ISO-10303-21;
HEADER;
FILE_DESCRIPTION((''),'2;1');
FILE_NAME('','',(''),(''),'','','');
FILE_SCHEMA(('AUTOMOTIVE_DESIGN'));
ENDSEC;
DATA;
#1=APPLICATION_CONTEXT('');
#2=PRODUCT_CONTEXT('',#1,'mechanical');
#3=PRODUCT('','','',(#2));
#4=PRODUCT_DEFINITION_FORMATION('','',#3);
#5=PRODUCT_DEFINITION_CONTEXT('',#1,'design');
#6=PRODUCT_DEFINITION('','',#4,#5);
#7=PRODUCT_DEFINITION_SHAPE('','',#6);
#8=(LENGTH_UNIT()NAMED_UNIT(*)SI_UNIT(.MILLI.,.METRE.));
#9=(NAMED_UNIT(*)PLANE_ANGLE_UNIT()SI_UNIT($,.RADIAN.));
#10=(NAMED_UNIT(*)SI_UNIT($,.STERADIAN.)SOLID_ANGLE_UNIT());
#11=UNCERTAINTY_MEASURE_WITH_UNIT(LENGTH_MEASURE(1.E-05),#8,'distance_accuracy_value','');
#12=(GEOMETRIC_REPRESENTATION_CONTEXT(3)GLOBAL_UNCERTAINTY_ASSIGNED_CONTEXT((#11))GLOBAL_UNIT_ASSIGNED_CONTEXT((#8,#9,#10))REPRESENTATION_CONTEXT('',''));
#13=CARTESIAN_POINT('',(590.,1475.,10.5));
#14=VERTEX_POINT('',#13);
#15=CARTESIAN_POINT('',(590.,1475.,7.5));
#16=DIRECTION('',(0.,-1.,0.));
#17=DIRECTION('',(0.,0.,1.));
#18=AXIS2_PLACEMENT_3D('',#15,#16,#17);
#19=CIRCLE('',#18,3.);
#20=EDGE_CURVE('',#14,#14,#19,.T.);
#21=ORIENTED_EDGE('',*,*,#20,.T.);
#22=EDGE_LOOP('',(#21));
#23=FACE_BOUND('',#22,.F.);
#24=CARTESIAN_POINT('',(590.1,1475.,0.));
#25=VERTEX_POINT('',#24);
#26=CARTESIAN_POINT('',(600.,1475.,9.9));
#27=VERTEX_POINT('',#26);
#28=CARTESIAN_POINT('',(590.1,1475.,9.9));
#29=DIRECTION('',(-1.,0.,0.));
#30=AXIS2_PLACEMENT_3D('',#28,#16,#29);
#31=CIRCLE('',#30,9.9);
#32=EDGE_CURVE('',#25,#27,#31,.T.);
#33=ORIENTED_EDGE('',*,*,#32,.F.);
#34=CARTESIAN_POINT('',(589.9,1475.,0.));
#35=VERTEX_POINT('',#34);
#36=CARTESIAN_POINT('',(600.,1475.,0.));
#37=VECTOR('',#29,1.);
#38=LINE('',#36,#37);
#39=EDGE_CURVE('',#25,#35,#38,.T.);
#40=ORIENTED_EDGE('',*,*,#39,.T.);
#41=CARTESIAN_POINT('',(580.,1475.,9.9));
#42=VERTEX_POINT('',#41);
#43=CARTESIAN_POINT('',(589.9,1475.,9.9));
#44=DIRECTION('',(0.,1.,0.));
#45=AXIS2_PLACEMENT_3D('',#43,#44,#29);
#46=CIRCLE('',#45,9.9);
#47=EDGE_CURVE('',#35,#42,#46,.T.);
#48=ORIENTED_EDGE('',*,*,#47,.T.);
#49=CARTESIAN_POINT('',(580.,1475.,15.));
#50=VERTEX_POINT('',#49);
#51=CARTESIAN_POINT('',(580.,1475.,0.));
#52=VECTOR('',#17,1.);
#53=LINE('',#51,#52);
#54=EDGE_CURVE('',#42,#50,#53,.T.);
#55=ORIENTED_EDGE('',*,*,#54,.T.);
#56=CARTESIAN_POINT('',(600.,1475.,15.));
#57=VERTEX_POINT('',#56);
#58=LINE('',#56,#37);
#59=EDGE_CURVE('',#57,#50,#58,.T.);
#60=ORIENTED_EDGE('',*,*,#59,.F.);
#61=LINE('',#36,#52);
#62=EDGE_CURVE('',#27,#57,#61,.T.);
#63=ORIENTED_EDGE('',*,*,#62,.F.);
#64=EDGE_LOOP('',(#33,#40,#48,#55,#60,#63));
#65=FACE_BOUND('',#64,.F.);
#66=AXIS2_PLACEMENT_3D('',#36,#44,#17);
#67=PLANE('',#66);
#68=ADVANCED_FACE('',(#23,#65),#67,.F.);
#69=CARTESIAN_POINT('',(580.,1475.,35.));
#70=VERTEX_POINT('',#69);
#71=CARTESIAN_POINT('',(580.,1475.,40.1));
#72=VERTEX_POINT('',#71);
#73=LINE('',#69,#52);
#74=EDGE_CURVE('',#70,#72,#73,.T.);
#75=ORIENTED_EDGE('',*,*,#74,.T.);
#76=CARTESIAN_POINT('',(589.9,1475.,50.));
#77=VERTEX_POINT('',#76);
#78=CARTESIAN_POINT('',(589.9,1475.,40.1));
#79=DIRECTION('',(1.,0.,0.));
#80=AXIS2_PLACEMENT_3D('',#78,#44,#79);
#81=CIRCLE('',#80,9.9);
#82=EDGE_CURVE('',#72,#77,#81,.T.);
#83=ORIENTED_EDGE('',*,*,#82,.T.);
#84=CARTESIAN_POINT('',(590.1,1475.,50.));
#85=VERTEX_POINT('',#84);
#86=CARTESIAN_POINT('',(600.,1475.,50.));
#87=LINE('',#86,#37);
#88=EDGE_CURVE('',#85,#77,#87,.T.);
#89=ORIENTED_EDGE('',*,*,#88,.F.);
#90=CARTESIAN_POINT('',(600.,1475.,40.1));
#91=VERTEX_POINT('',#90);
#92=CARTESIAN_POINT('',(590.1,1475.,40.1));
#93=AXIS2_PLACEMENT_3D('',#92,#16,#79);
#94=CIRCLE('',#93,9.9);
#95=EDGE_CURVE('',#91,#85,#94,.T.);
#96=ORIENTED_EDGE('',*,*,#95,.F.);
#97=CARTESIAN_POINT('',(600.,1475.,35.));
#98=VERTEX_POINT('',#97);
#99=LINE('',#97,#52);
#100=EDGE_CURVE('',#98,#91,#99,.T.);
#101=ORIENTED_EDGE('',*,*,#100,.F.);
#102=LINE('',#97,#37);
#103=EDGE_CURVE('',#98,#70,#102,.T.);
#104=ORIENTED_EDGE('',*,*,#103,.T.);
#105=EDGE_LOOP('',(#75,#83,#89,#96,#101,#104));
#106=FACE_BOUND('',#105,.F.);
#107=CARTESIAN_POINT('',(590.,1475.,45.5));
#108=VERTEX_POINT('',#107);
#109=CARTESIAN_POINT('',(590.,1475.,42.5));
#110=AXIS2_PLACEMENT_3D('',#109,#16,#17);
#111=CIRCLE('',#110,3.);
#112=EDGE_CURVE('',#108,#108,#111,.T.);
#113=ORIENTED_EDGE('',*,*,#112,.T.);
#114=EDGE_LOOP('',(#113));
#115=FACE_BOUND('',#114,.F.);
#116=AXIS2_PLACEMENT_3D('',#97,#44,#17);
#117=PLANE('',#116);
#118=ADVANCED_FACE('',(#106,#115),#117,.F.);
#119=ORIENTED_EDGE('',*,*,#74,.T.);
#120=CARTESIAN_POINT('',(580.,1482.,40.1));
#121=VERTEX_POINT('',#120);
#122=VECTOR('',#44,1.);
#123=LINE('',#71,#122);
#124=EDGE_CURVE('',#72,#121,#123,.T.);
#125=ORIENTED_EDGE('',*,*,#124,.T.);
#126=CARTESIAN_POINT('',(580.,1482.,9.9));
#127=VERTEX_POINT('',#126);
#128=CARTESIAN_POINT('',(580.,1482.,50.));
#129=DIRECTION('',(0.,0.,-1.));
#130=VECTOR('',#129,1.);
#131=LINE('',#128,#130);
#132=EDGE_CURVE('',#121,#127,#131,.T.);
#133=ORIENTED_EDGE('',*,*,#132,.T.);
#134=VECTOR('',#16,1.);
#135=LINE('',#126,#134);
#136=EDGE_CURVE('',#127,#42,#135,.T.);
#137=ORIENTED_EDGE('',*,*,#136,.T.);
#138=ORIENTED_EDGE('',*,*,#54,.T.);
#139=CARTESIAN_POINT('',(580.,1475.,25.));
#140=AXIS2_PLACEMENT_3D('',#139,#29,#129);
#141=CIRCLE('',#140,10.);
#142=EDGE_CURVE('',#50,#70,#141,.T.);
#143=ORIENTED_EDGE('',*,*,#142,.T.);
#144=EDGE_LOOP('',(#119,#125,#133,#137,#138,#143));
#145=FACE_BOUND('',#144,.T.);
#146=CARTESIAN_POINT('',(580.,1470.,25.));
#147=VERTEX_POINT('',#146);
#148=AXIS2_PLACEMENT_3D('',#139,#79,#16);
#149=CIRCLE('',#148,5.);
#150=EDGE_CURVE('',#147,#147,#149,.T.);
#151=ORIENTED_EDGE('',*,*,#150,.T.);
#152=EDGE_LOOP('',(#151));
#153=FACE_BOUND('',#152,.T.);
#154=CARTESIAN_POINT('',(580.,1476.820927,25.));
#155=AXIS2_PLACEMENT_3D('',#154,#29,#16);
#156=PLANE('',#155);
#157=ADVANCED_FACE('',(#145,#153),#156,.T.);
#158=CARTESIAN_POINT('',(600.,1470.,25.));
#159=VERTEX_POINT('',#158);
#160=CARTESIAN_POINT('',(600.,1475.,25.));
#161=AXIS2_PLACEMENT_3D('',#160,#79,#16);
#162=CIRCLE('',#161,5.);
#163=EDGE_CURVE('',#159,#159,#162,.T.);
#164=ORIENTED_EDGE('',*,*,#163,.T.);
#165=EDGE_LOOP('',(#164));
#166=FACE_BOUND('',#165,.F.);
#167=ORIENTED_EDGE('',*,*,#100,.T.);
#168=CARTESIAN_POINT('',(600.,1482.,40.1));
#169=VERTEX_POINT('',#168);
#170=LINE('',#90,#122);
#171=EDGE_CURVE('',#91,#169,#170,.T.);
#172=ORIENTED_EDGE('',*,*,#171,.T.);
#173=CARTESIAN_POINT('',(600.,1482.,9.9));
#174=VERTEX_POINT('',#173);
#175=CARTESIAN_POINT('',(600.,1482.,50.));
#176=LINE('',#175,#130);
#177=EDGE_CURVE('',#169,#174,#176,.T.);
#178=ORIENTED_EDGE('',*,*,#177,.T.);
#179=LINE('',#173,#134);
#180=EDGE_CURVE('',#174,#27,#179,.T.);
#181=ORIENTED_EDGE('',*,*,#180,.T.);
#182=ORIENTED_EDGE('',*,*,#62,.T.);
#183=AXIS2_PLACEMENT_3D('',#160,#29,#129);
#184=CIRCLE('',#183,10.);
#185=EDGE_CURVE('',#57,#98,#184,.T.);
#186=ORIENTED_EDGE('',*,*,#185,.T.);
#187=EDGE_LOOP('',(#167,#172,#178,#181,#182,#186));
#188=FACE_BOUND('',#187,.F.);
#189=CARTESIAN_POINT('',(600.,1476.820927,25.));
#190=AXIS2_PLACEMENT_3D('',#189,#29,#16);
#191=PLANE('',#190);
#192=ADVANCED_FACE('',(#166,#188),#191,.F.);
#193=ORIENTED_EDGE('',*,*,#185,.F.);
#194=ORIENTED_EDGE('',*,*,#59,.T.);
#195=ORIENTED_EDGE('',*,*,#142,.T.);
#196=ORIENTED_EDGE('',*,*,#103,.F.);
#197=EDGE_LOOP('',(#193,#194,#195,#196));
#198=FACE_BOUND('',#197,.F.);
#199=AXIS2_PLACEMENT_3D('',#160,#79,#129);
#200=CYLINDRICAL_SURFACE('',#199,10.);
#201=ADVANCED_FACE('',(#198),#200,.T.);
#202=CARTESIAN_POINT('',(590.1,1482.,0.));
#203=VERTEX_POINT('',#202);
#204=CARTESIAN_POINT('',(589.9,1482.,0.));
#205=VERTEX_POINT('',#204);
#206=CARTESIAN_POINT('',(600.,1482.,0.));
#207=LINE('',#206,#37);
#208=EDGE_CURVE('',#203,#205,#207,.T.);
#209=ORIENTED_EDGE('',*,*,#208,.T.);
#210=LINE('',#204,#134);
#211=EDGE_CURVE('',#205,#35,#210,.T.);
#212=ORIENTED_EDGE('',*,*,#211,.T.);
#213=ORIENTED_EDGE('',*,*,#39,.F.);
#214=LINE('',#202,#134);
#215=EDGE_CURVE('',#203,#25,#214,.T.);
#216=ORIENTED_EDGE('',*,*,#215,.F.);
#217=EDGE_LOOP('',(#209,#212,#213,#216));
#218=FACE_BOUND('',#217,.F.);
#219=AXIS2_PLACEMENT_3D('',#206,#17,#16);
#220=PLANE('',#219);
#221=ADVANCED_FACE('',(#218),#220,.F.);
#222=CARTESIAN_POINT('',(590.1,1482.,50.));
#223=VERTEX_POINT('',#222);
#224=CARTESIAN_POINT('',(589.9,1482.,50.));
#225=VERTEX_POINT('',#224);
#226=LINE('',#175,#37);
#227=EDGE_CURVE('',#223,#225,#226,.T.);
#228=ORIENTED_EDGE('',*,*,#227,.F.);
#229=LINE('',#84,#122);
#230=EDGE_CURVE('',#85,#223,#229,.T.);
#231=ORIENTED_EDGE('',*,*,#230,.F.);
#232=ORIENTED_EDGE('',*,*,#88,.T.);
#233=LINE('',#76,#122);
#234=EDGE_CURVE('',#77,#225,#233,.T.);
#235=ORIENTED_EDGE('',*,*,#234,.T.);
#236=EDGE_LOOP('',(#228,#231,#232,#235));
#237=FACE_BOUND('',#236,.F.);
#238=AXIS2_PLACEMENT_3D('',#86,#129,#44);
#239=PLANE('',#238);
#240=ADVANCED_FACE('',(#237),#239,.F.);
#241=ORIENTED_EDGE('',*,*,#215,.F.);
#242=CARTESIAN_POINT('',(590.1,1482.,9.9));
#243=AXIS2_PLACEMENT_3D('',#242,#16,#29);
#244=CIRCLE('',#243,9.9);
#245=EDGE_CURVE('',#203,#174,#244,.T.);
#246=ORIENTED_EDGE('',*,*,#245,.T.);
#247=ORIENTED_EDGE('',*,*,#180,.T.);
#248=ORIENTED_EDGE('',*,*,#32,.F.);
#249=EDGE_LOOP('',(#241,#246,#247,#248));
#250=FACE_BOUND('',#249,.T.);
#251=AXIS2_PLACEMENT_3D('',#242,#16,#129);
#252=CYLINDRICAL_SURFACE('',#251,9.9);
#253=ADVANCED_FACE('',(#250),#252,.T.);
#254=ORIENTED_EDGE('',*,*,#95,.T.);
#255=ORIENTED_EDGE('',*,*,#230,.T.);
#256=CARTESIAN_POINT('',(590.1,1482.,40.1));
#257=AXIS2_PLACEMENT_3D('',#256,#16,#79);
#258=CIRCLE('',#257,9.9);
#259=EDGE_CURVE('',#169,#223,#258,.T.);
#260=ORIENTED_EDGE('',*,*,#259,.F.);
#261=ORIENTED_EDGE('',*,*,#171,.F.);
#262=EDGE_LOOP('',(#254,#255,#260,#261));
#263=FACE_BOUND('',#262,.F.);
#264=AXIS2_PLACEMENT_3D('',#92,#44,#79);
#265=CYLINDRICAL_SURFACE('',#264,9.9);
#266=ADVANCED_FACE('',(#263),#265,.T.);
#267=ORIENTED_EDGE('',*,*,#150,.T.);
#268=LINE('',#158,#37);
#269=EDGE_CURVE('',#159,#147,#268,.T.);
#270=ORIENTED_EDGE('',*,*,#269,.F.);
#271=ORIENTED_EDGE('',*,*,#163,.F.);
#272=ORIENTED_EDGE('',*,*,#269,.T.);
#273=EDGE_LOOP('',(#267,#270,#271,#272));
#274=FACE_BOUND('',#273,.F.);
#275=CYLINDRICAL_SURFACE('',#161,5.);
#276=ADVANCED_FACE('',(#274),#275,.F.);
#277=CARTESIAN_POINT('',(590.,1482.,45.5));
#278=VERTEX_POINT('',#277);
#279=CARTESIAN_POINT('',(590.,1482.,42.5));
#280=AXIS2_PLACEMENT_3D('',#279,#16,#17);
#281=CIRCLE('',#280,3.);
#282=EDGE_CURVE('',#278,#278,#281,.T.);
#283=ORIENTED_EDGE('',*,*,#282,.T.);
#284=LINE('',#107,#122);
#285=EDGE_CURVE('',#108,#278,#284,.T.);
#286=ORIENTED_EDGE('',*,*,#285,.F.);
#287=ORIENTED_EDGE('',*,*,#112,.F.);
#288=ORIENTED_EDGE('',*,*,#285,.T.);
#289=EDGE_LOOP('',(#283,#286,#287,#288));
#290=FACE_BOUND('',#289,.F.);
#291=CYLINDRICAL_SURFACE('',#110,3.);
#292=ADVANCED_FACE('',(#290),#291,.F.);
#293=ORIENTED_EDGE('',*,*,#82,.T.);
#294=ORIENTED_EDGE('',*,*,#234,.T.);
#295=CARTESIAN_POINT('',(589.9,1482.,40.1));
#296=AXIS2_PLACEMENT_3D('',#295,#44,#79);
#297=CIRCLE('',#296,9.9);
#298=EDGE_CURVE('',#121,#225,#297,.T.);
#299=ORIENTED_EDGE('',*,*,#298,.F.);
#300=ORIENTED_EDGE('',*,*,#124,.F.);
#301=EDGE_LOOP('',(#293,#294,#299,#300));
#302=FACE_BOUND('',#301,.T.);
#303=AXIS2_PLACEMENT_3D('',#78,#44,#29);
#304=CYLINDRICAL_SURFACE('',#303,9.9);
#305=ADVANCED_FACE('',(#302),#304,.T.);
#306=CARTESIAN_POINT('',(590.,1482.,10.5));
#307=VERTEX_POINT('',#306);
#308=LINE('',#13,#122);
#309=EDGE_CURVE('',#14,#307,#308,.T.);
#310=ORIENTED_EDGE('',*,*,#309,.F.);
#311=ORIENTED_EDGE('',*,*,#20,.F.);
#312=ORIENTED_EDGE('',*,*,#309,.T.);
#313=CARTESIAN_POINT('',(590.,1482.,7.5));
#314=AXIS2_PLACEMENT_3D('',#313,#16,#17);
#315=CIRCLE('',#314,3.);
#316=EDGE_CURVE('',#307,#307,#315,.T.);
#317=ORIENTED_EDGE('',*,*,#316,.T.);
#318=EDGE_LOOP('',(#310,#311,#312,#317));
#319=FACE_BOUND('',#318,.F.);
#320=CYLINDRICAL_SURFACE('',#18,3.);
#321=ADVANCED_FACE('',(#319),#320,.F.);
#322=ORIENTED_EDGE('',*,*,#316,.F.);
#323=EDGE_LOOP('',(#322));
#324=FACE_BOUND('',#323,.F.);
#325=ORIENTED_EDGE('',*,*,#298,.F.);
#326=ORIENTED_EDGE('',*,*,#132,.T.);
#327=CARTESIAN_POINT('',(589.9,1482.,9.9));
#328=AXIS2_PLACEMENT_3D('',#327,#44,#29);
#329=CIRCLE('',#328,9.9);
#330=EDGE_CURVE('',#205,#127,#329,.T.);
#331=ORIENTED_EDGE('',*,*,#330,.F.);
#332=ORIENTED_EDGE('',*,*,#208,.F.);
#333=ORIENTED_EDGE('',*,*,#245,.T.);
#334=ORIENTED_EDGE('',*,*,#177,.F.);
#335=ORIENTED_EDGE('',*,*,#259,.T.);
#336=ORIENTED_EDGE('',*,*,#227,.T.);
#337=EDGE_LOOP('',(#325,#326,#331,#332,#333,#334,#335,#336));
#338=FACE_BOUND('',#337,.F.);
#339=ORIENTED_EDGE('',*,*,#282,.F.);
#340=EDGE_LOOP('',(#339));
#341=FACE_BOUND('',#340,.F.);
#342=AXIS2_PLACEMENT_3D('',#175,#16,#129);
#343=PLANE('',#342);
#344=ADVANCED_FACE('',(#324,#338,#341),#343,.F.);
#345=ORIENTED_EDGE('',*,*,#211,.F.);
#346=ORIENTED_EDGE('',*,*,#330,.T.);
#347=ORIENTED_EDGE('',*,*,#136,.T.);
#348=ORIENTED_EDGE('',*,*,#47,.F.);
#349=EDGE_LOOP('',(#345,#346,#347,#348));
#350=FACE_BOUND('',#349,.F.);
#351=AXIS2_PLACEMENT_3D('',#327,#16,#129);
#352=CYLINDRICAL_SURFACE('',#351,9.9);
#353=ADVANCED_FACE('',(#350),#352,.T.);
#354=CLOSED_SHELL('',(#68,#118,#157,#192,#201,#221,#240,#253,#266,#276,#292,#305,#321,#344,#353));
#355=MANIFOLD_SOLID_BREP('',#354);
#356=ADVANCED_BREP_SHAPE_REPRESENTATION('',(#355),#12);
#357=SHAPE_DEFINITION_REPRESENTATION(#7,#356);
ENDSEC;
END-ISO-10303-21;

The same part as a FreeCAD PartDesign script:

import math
import FreeCAD as App
import Part
import Sketcher

V = App.Vector


def edges_at(feature, points):
    """Names of the edges that pass closest to the given points."""
    edges = feature.Shape.Edges
    near = lambda p: min(range(len(edges)), key=lambda i: edges[i].distToShape(Part.Vertex(*p))[0])
    return sorted({f"Edge{near(p) + 1}" for p in points})

doc = App.newDocument("Part")
body = doc.addObject("PartDesign::Body", "Body")

# Sketch on XY plane
sketch1 = body.newObject("Sketcher::SketchObject", "Sketch")
sketch1.AttachmentSupport = (doc.getObject("XY_Plane"), [""])
sketch1.MapMode = "FlatFace"
sketch1.addGeometry([
    Part.LineSegment(V(18, 0, 0), V(25, 0, 0)),  # 0
    Part.LineSegment(V(25, 0, 0), V(25, 15, 0)),  # 1
    Part.ArcOfCircle(Part.Circle(V(25, 25, 0), V(0, 0, 1), 10), math.radians(-90), math.radians(90)),  # 2
    Part.LineSegment(V(25, 35, 0), V(25, 50, 0)),  # 3
    Part.LineSegment(V(25, 50, 0), V(18, 50, 0)),  # 4
    Part.LineSegment(V(18, 50, 0), V(18, 0, 0)),  # 5
], False)
sketch1.addConstraint([
    Sketcher.Constraint("Coincident", 0, 2, 1, 1),
    Sketcher.Constraint("Coincident", 1, 2, 2, 1),
    Sketcher.Constraint("Coincident", 2, 2, 3, 1),
    Sketcher.Constraint("Coincident", 3, 2, 4, 1),
    Sketcher.Constraint("Coincident", 4, 2, 5, 1),
    Sketcher.Constraint("Coincident", 5, 2, 0, 1),
    Sketcher.Constraint("Horizontal", 0),
    Sketcher.Constraint("Vertical", 1),
    Sketcher.Constraint("Vertical", 3),
    Sketcher.Constraint("Horizontal", 4),
    Sketcher.Constraint("Vertical", 5),
    Sketcher.Constraint("PointOnObject", 0, 2, -1),
    Sketcher.Constraint("Vertical", 2, 3, 0, 2),
    Sketcher.Constraint("Vertical", 1, 2, 2, 2),
    Sketcher.Constraint("Equal", 1, 3),
    Sketcher.Constraint("Radius", 2, 10.0),
    Sketcher.Constraint("DistanceX", 0, 1, 0, 2, 7.0),
    Sketcher.Constraint("DistanceY", 1, 1, 1, 2, 15.0),
    Sketcher.Constraint("DistanceX", -1, 1, 2, 3, 25.0),
])
pad1 = body.newObject("PartDesign::Pad", "Pad")
pad1.Profile = sketch1
pad1.Length = 20

# Sketch on XY plane
sketch2 = body.newObject("Sketcher::SketchObject", "Sketch001")
sketch2.AttachmentSupport = (doc.getObject("XY_Plane"), [""])
sketch2.MapMode = "FlatFace"
sketch2.addGeometry(Part.Circle(V(25, 25, 0), V(0, 0, 1), 5), False)
sketch2.addConstraint([
    Sketcher.Constraint("Diameter", 0, 10.0),
    Sketcher.Constraint("DistanceX", -1, 1, 0, 3, 25.0),
    Sketcher.Constraint("DistanceY", -1, 1, 0, 3, 25.0),
])
pocket1 = body.newObject("PartDesign::Pocket", "Pocket")
pocket1.Profile = sketch2
pocket1.Type = "ThroughAll"
pocket1.Reversed = True
doc.recompute()

fillet = body.newObject("PartDesign::Fillet", "Fillet")
fillet.Base = (pocket1, edges_at(pocket1, [
    (21.5, 0, 0),
    (21.5, 50, 0),
    (21.5, 50, 20),
    (21.5, 0, 20),
]))
fillet.Radius = 9.9

# Sketch on YZ plane
sketch3 = body.newObject("Sketcher::SketchObject", "Sketch002")
sketch3.AttachmentSupport = (doc.getObject("YZ_Plane"), [""])
sketch3.MapMode = "FlatFace"
sketch3.AttachmentOffset = App.Placement(V(0, 0, 25), App.Rotation())
sketch3.addGeometry([
    Part.Circle(V(7.5, 10, 0), V(0, 0, 1), 3),
    Part.Circle(V(42.5, 10, 0), V(0, 0, 1), 3),
], False)
sketch3.addConstraint([
    Sketcher.Constraint("Equal", 0, 1),
    Sketcher.Constraint("Horizontal", 0, 3, 1, 3),
    Sketcher.Constraint("Diameter", 0, 6.0),
    Sketcher.Constraint("DistanceY", -1, 1, 0, 3, 10.0),
    Sketcher.Constraint("DistanceX", 0, 3, 1, 3, 35.0),
    Sketcher.Constraint("DistanceX", -1, 1, 0, 3, 7.5),
])
pocket2 = body.newObject("PartDesign::Pocket", "Pocket001")
pocket2.Profile = sketch3
pocket2.Type = "ThroughAll"
body2 = doc.addObject("PartDesign::Body", "Body001")
doc.recompute()

body.Placement = App.Placement(V(0, 0, 0), App.Rotation(V(1, 0, 0), 90))
boolean = body2.newObject("PartDesign::Boolean", "Boolean")
boolean.Type = "Fuse"
boolean.addObjects([body])
body3 = doc.addObject("PartDesign::Body", "Body002")
doc.recompute()

body2.Placement = App.Placement(V(120.75, 1500, 0), App.Rotation(V(0, 0, 1), 270))
boolean2 = body3.newObject("PartDesign::Boolean", "Boolean001")
boolean2.Type = "Fuse"
boolean2.addObjects([body2])
body4 = doc.addObject("PartDesign::Body", "Body003")
doc.recompute()

body3.Placement = App.Placement(V(479.25, 0, 0), App.Rotation(V(0, 0, 1), 0))
boolean3 = body4.newObject("PartDesign::Boolean", "Boolean002")
boolean3.Type = "Fuse"
boolean3.addObjects([body3])

doc.recompute()
